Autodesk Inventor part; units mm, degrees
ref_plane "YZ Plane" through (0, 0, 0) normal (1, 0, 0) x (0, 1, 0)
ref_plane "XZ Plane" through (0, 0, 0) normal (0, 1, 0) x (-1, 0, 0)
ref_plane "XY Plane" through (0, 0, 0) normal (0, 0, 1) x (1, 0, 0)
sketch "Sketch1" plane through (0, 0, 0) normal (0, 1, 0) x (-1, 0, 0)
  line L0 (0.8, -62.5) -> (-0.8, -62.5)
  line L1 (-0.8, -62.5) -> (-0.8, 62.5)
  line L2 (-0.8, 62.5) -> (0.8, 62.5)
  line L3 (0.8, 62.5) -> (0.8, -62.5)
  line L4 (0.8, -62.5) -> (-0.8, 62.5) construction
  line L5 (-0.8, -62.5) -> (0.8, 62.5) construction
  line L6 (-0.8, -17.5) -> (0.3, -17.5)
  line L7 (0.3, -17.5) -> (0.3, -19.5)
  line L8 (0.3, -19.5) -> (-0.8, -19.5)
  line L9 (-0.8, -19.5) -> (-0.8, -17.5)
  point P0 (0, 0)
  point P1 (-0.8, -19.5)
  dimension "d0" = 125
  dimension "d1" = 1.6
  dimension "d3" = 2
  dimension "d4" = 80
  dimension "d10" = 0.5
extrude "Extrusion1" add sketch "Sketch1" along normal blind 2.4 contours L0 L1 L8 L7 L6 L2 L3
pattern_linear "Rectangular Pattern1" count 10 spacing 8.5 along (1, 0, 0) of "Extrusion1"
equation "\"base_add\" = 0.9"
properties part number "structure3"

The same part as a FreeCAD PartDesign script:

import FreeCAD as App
import Part
import Sketcher

V = App.Vector
Q = App.Units.Quantity

doc = App.newDocument("Part")
body = doc.addObject("PartDesign::Body", "Body")
body.AllowCompound = True

sketch1 = body.newObject("Sketcher::SketchObject", "Sketch")
sketch1.AttachmentSupport = (doc.getObject("XZ_Plane"), [""])
sketch1.MapMode = "FlatFace"
sketch1.addGeometry([
    Part.LineSegment(V(0.8, -62.5, 0), V(-0.8, -62.5, 0)),
    Part.LineSegment(V(-0.8, -62.5, 0), V(-0.8, 62.5, 0)),
    Part.LineSegment(V(-0.8, 62.5, 0), V(0.8, 62.5, 0)),
    Part.LineSegment(V(0.8, 62.5, 0), V(0.8, -17.5, 0)),
    Part.LineSegment(V(0.8, -17.5, 0), V(-0.3, -17.5, 0)),
    Part.LineSegment(V(-0.3, -17.5, 0), V(-0.3, -19.5, 0)),
    Part.LineSegment(V(-0.3, -19.5, 0), V(0.8, -19.5, 0)),
    Part.LineSegment(V(0.8, -19.5, 0), V(0.8, -62.5, 0)),
], False)
sketch1.addConstraint([
    Sketcher.Constraint("Coincident", 0, 2, 1, 1),
    Sketcher.Constraint("Coincident", 1, 2, 2, 1),
    Sketcher.Constraint("Coincident", 2, 2, 3, 1),
    Sketcher.Constraint("Coincident", 3, 2, 4, 1),
    Sketcher.Constraint("Coincident", 4, 2, 5, 1),
    Sketcher.Constraint("Coincident", 5, 2, 6, 1),
    Sketcher.Constraint("Coincident", 6, 2, 7, 1),
    Sketcher.Constraint("Coincident", 7, 2, 0, 1),
    Sketcher.Constraint("Horizontal", 0),
    Sketcher.Constraint("Vertical", 1),
    Sketcher.Constraint("Horizontal", 2),
    Sketcher.Constraint("Vertical", 3),
    Sketcher.Constraint("Horizontal", 4),
    Sketcher.Constraint("Vertical", 5),
    Sketcher.Constraint("Horizontal", 6),
    Sketcher.Constraint("Vertical", 7),
    Sketcher.Constraint("Symmetric", 0, 2, 2, 2, -1, 1),
    Sketcher.Constraint("Vertical", 3, 2, 6, 2),
    Sketcher.Constraint("DistanceY", 1, 1, 1, 2, Q("125 mm")),
    Sketcher.Constraint("DistanceY", 3, 2, 3, 1, Q("80 mm")),
    Sketcher.Constraint("DistanceY", 5, 2, 5, 1, Q("2 mm")),
    Sketcher.Constraint("DistanceX", 0, 2, 0, 1, Q("1.6 mm")),
    Sketcher.Constraint("DistanceX", 0, 2, 4, 2, Q("0.5 mm")),
])
pad1 = body.newObject("PartDesign::Pad", "Pad")
pad1.Profile = sketch1
pad1.Length = 2.4
pad1.Reversed = True
doc.recompute()

linearpattern = body.newObject("PartDesign::LinearPattern", "LinearPattern")
linearpattern.Originals = [pad1]
linearpattern.Direction = (doc.getObject("X_Axis"), [""])
linearpattern.Mode = "offset"
linearpattern.Offset = 8.5
linearpattern.Occurrences = 10
body.Tip = linearpattern

doc.recompute()
